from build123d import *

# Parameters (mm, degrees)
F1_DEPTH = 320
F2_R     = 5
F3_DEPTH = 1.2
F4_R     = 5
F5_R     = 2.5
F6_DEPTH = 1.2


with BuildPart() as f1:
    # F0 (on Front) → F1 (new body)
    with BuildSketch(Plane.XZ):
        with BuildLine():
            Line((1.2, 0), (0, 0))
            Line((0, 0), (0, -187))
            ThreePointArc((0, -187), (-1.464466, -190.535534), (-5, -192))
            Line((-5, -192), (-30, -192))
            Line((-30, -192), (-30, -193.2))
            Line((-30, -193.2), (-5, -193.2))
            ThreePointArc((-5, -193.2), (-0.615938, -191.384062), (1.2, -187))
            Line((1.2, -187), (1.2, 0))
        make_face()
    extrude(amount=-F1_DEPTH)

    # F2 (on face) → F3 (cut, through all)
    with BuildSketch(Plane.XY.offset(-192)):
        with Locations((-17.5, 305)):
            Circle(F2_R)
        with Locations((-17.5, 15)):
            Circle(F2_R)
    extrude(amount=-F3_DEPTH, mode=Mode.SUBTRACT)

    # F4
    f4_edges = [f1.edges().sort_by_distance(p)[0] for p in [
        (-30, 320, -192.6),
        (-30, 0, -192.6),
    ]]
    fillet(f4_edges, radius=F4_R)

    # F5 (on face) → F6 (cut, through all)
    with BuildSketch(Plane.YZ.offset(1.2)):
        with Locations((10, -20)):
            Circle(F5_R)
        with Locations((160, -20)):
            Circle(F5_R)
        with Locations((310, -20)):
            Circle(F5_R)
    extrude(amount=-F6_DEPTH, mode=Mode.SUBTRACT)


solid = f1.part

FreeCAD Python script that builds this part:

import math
import FreeCAD as App
import Part
import Sketcher
from FreeCAD import Vector
Q = App.Units.Quantity


def edges_at(feature, points):
    """Names of the edges that pass closest to the given points."""
    edges = feature.Shape.Edges
    near = lambda p: min(range(len(edges)), key=lambda i: edges[i].distToShape(Part.Vertex(*p))[0])
    return sorted({f"Edge{near(p) + 1}" for p in points})

doc = App.newDocument("Part")
params = doc.addObject("Spreadsheet::Sheet", "Params")
for row, (alias, value) in enumerate([
    ("sketch1_radius", "5 mm"),
    ("sketch1_radius2", "6.2 mm"),
    ("sketch1_width", "25 mm"),
    ("sketch1_height", "187 mm"),
    ("pad1_length", "320 mm"),
    ("sketch2_diameter", "10 mm"),
    ("fillet_radius", "5 mm"),
    ("sketch3_diameter", "5 mm"),
], start=1):
    params.set(f"A{row}", alias)
    params.set(f"B{row}", "=" + value)
    params.setAlias(f"B{row}", alias)

body = doc.addObject("PartDesign::Body", "Body")

sketch1 = body.newObject("Sketcher::SketchObject", "Sketch")
sketch1.AttachmentSupport = (doc.getObject("XZ_Plane"), [""])
sketch1.MapMode = "FlatFace"
sketch1.addGeometry([
    Part.LineSegment(Vector(1.2, 0, 0), Vector(0, 0, 0)),
    Part.LineSegment(Vector(0, 0, 0), Vector(0, -187, 0)),
    Part.ArcOfCircle(Part.Circle(Vector(-5, -187, 0), Vector(0, 0, 1), 5), math.radians(-90), math.radians(0)),
    Part.LineSegment(Vector(-5, -192, 0), Vector(-30, -192, 0)),
    Part.LineSegment(Vector(-30, -192, 0), Vector(-30, -193.2, 0)),
    Part.LineSegment(Vector(-30, -193.2, 0), Vector(-5, -193.2, 0)),
    Part.ArcOfCircle(Part.Circle(Vector(-5, -187, 0), Vector(0, 0, 1), 6.2), math.radians(-90), math.radians(0)),
    Part.LineSegment(Vector(1.2, -187, 0), Vector(1.2, 0, 0)),
], False)
sketch1.addConstraint([
    Sketcher.Constraint("Coincident", 0, 2, 1, 1),
    Sketcher.Constraint("Tangent", 1, 2, 2, 2),
    Sketcher.Constraint("Tangent", 2, 1, 3, 1),
    Sketcher.Constraint("Coincident", 3, 2, 4, 1),
    Sketcher.Constraint("Coincident", 4, 2, 5, 1),
    Sketcher.Constraint("Tangent", 5, 2, 6, 1),
    Sketcher.Constraint("Tangent", 6, 2, 7, 1),
    Sketcher.Constraint("Coincident", 7, 2, 0, 1),
    Sketcher.Constraint("Horizontal", 0),
    Sketcher.Constraint("Vertical", 1),
    Sketcher.Constraint("Horizontal", 3),
    Sketcher.Constraint("Vertical", 4),
    Sketcher.Constraint("Horizontal", 5),
    Sketcher.Constraint("Vertical", 7),
    Sketcher.Constraint("Coincident", 0, 2, -1, 1),
    Sketcher.Constraint("Coincident", 6, 3, 2, 3),
    Sketcher.Constraint("Radius", 2, Q("5 mm")),
    Sketcher.Constraint("Radius", 6, Q("6.2 mm")),
    Sketcher.Constraint("DistanceX", 3, 2, 3, 1, Q("25 mm")),
    Sketcher.Constraint("DistanceY", 1, 2, 1, 1, Q("187 mm")),
])
sketch1.setExpression("Constraints[16]", "Params.sketch1_radius")
sketch1.setExpression("Constraints[17]", "Params.sketch1_radius2")
sketch1.setExpression("Constraints[18]", "Params.sketch1_width")
sketch1.setExpression("Constraints[19]", "Params.sketch1_height")
pad1 = body.newObject("PartDesign::Pad", "Pad")
pad1.Profile = sketch1
pad1.setExpression("Length", "Params.pad1_length")
pad1.Reversed = True

sketch2 = body.newObject("Sketcher::SketchObject", "Sketch001")
sketch2.AttachmentSupport = (doc.getObject("XY_Plane"), [""])
sketch2.MapMode = "FlatFace"
sketch2.AttachmentOffset = App.Placement(Vector(0, 0, -192), App.Rotation())
sketch2.addGeometry([
    Part.Circle(Vector(-18, 305, 0), Vector(0, 0, 1), 5),
    Part.Circle(Vector(-18, 15, 0), Vector(0, 0, 1), 5),
], False)
sketch2.addConstraint([
    Sketcher.Constraint("Equal", 0, 1),
    Sketcher.Constraint("Vertical", 0, 3, 1, 3),
    Sketcher.Constraint("Diameter", 0, Q("10 mm")),
    Sketcher.Constraint("DistanceY", -1, 1, 0, 3, Q("305 mm")),
    Sketcher.Constraint("DistanceY", -1, 1, 1, 3, Q("15 mm")),
    Sketcher.Constraint("DistanceX", 0, 3, -1, 1, Q("17.5 mm")),
])
sketch2.setExpression("Constraints[2]", "Params.sketch2_diameter")
pocket1 = body.newObject("PartDesign::Pocket", "Pocket")
pocket1.Profile = sketch2
pocket1.Type = "ThroughAll"
doc.recompute()

fillet = body.newObject("PartDesign::Fillet", "Fillet")
fillet.Base = (pocket1, edges_at(pocket1, [(-30, 320, -192.6), (-30, 0, -192.6)]))
fillet.setExpression("Radius", "Params.fillet_radius")

sketch3 = body.newObject("Sketcher::SketchObject", "Sketch002")
sketch3.AttachmentSupport = (doc.getObject("YZ_Plane"), [""])
sketch3.MapMode = "FlatFace"
sketch3.AttachmentOffset = App.Placement(Vector(0, 0, 1.2), App.Rotation())
sketch3.addGeometry([
    Part.Circle(Vector(10, -20, 0), Vector(0, 0, 1), 2.5),
    Part.Circle(Vector(160, -20, 0), Vector(0, 0, 1), 2.5),
    Part.Circle(Vector(310, -20, 0), Vector(0, 0, 1), 2.5),
], False)
sketch3.addConstraint([
    Sketcher.Constraint("Equal", 0, 1),
    Sketcher.Constraint("Equal", 1, 2),
    Sketcher.Constraint("Horizontal", 0, 3, 1, 3),
    Sketcher.Constraint("Horizontal", 1, 3, 2, 3),
    Sketcher.Constraint("Diameter", 0, Q("5 mm")),
    Sketcher.Constraint("DistanceX", -1, 1, 0, 3, Q("10 mm")),
    Sketcher.Constraint("DistanceY", 0, 3, -1, 1, Q("20 mm")),
    Sketcher.Constraint("DistanceX", -1, 1, 1, 3, Q("160 mm")),
    Sketcher.Constraint("DistanceX", -1, 1, 2, 3, Q("310 mm")),
])
sketch3.setExpression("Constraints[4]", "Params.sketch3_diameter")
pocket2 = body.newObject("PartDesign::Pocket", "Pocket001")
pocket2.Profile = sketch3
pocket2.Type = "ThroughAll"

doc.recompute()
